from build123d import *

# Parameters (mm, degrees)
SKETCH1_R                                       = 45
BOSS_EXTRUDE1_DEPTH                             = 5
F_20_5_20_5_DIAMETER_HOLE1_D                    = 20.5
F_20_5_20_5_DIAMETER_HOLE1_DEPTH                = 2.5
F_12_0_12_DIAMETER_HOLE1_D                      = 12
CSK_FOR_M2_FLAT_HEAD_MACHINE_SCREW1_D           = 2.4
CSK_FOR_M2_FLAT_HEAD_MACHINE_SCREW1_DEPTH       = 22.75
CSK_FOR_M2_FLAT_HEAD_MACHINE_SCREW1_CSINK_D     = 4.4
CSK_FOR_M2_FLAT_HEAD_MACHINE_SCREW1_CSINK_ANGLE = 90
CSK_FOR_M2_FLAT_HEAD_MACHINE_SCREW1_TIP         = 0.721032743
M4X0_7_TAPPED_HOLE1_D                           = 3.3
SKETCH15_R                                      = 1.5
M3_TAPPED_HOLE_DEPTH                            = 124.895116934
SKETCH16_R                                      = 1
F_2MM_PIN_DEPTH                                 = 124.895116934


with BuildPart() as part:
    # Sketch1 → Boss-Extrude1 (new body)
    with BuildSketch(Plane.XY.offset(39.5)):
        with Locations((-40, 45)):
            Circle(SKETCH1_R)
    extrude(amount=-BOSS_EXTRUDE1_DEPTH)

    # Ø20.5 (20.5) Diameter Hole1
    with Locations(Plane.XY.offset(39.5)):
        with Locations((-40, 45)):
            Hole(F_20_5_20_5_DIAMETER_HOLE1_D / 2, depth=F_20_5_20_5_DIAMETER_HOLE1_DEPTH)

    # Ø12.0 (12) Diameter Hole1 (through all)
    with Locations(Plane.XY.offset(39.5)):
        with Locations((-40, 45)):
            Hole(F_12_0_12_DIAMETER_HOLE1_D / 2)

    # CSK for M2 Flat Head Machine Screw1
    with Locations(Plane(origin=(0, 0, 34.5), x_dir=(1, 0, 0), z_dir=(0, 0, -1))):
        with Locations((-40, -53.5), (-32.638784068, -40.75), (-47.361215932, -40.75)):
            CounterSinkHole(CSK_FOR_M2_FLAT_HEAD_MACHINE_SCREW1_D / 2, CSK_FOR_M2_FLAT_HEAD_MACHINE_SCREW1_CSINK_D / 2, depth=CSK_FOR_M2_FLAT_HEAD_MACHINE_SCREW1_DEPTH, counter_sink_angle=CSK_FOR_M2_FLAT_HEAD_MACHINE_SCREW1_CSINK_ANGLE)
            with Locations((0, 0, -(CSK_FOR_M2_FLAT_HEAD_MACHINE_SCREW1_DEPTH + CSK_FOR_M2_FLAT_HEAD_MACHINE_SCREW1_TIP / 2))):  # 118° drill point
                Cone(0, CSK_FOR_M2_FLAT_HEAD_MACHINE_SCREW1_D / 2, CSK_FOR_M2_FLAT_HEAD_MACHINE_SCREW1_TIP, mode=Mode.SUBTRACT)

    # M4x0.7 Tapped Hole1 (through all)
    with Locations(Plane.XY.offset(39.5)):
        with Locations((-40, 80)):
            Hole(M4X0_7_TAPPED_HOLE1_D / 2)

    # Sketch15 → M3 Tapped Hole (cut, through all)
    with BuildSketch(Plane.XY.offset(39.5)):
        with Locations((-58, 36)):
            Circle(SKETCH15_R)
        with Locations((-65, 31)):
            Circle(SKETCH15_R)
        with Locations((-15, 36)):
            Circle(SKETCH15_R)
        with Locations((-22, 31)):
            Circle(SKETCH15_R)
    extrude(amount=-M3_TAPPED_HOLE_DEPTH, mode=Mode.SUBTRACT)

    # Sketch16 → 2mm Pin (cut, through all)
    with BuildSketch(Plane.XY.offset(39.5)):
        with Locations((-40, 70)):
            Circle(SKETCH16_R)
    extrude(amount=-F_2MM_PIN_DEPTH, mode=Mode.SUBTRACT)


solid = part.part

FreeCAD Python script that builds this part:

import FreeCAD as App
import Part
import Sketcher
Q = App.Units.Quantity

doc = App.newDocument("Part")
body = doc.addObject("PartDesign::Body", "Body")

# Sketch on XY plane
sketch1 = doc.addObject("Sketcher::SketchObject", "Sketch")
body.addObject(sketch1)
sketch1.AttachmentSupport = (doc.XY_Plane, [""])
sketch1.MapMode = "FlatFace"
sketch1.AttachmentOffset = App.Placement(App.Vector(0, 0, 39.5), App.Rotation())
sketch1.addGeometry(Part.Circle(App.Vector(-40, 45, 0), App.Vector(0, 0, 1), 45), False)
sketch1.addConstraint([
    Sketcher.Constraint("Diameter", 0, Q("90 mm")),
    Sketcher.Constraint("DistanceX", 0, 3, -1, 1, Q("40 mm")),
    Sketcher.Constraint("DistanceY", -1, 1, 0, 3, Q("45 mm")),
])
pad1 = doc.addObject("PartDesign::Pad", "Pad")
body.addObject(pad1)
pad1.Profile = sketch1
pad1.Length = 5
pad1.Reversed = True

# Sketch on XY plane
sketch2 = doc.addObject("Sketcher::SketchObject", "Sketch001")
body.addObject(sketch2)
sketch2.AttachmentSupport = (doc.XY_Plane, [""])
sketch2.MapMode = "FlatFace"
sketch2.AttachmentOffset = App.Placement(App.Vector(0, 0, 39.5), App.Rotation())
sketch2.addGeometry(Part.Circle(App.Vector(-40, 45, 0), App.Vector(0, 0, 1), 10), False)
sketch2.addConstraint([
    Sketcher.Constraint("Diameter", 0, Q("20.5 mm")),
    Sketcher.Constraint("DistanceX", 0, 3, -1, 1, Q("40 mm")),
    Sketcher.Constraint("DistanceY", -1, 1, 0, 3, Q("45 mm")),
])
doc.recompute()
hole = doc.addObject("PartDesign::Hole", "Hole")
body.addObject(hole)
hole.Profile = sketch2
hole.ThreadType = "None"
hole.Diameter = 20.5
hole.DepthType = "Dimension"
hole.Depth = 2.5
hole.DrillPoint = "Flat"

# Sketch on XY plane
sketch3 = doc.addObject("Sketcher::SketchObject", "Sketch002")
body.addObject(sketch3)
sketch3.AttachmentSupport = (doc.XY_Plane, [""])
sketch3.MapMode = "FlatFace"
sketch3.AttachmentOffset = App.Placement(App.Vector(0, 0, 39.5), App.Rotation())
sketch3.addGeometry(Part.Circle(App.Vector(-40, 45, 0), App.Vector(0, 0, 1), 6), False)
sketch3.addConstraint([
    Sketcher.Constraint("Diameter", 0, Q("12 mm")),
    Sketcher.Constraint("DistanceX", 0, 3, -1, 1, Q("40 mm")),
    Sketcher.Constraint("DistanceY", -1, 1, 0, 3, Q("45 mm")),
])
doc.recompute()
hole2 = doc.addObject("PartDesign::Hole", "Hole001")
body.addObject(hole2)
hole2.Profile = sketch3
hole2.ThreadType = "None"
hole2.Diameter = 12
hole2.DepthType = "ThroughAll"

# Sketch on XY plane
sketch4 = doc.addObject("Sketcher::SketchObject", "Sketch003")
body.addObject(sketch4)
sketch4.AttachmentSupport = (doc.XY_Plane, [""])
sketch4.MapMode = "FlatFace"
sketch4.AttachmentOffset = App.Placement(App.Vector(0, 0, 34.5), App.Rotation())
sketch4.addGeometry([
    Part.Circle(App.Vector(-40, 53.5, 0), App.Vector(0, 0, 1), 1.2),
    Part.Circle(App.Vector(-32.6, 40.8, 0), App.Vector(0, 0, 1), 1.2),
    Part.Circle(App.Vector(-47.4, 40.8, 0), App.Vector(0, 0, 1), 1.2),
], False)
sketch4.addConstraint([
    Sketcher.Constraint("Equal", 0, 1),
    Sketcher.Constraint("Equal", 1, 2),
    Sketcher.Constraint("Horizontal", 1, 3, 2, 3),
    Sketcher.Constraint("Diameter", 0, Q("2.4 mm")),
    Sketcher.Constraint("DistanceX", 0, 3, -1, 1, Q("40 mm")),
    Sketcher.Constraint("DistanceY", -1, 1, 0, 3, Q("53.5 mm")),
    Sketcher.Constraint("DistanceY", -1, 1, 1, 3, Q("40.75 mm")),
    Sketcher.Constraint("DistanceX", 2, 3, 1, 3, Q("14.722432 mm")),
    Sketcher.Constraint("DistanceX", 1, 3, -1, 1, Q("32.638784 mm")),
])
doc.recompute()
hole3 = doc.addObject("PartDesign::Hole", "Hole002")
body.addObject(hole3)
hole3.Profile = sketch4
hole3.ThreadType = "None"
hole3.Diameter = 2.4
hole3.DepthType = "Dimension"
hole3.Depth = 22.75
hole3.DrillPoint = "Angled"
hole3.DrillPointAngle = 118
hole3.HoleCutType = "Countersink"
hole3.HoleCutDiameter = 4.4
hole3.HoleCutCountersinkAngle = 90
hole3.Reversed = True

# Sketch on XY plane
sketch5 = doc.addObject("Sketcher::SketchObject", "Sketch004")
body.addObject(sketch5)
sketch5.AttachmentSupport = (doc.XY_Plane, [""])
sketch5.MapMode = "FlatFace"
sketch5.AttachmentOffset = App.Placement(App.Vector(0, 0, 39.5), App.Rotation())
sketch5.addGeometry(Part.Circle(App.Vector(-40, 80, 0), App.Vector(0, 0, 1), 1.6), False)
sketch5.addConstraint([
    Sketcher.Constraint("Diameter", 0, Q("3.3 mm")),
    Sketcher.Constraint("DistanceX", 0, 3, -1, 1, Q("40 mm")),
    Sketcher.Constraint("DistanceY", -1, 1, 0, 3, Q("80 mm")),
])
doc.recompute()
hole4 = doc.addObject("PartDesign::Hole", "Hole003")
body.addObject(hole4)
hole4.Profile = sketch5
hole4.ThreadType = "None"
hole4.Diameter = 3.3
hole4.DepthType = "ThroughAll"

# Sketch on XY plane
sketch6 = doc.addObject("Sketcher::SketchObject", "Sketch005")
body.addObject(sketch6)
sketch6.AttachmentSupport = (doc.XY_Plane, [""])
sketch6.MapMode = "FlatFace"
sketch6.AttachmentOffset = App.Placement(App.Vector(0, 0, 39.5), App.Rotation())
sketch6.addGeometry([
    Part.Circle(App.Vector(-58, 36, 0), App.Vector(0, 0, 1), 1.5),
    Part.Circle(App.Vector(-65, 31, 0), App.Vector(0, 0, 1), 1.5),
    Part.Circle(App.Vector(-15, 36, 0), App.Vector(0, 0, 1), 1.5),
    Part.Circle(App.Vector(-22, 31, 0), App.Vector(0, 0, 1), 1.5),
], False)
sketch6.addConstraint([
    Sketcher.Constraint("Equal", 0, 1),
    Sketcher.Constraint("Equal", 1, 2),
    Sketcher.Constraint("Equal", 2, 3),
    Sketcher.Constraint("Horizontal", 0, 3, 2, 3),
    Sketcher.Constraint("Horizontal", 1, 3, 3, 3),
    Sketcher.Constraint("Diameter", 0, Q("3 mm")),
    Sketcher.Constraint("DistanceX", 0, 3, -1, 1, Q("58 mm")),
    Sketcher.Constraint("DistanceY", -1, 1, 0, 3, Q("36 mm")),
    Sketcher.Constraint("DistanceX", 1, 3, -1, 1, Q("65 mm")),
    Sketcher.Constraint("DistanceY", -1, 1, 1, 3, Q("31 mm")),
    Sketcher.Constraint("DistanceX", 2, 3, -1, 1, Q("15 mm")),
    Sketcher.Constraint("DistanceX", 3, 3, -1, 1, Q("22 mm")),
])
pocket1 = doc.addObject("PartDesign::Pocket", "Pocket")
body.addObject(pocket1)
pocket1.Profile = sketch6
pocket1.Type = "ThroughAll"

# Sketch on XY plane
sketch7 = doc.addObject("Sketcher::SketchObject", "Sketch006")
body.addObject(sketch7)
sketch7.AttachmentSupport = (doc.XY_Plane, [""])
sketch7.MapMode = "FlatFace"
sketch7.AttachmentOffset = App.Placement(App.Vector(0, 0, 39.5), App.Rotation())
sketch7.addGeometry(Part.Circle(App.Vector(-40, 70, 0), App.Vector(0, 0, 1), 1), False)
sketch7.addConstraint([
    Sketcher.Constraint("Diameter", 0, Q("2 mm")),
    Sketcher.Constraint("DistanceX", 0, 3, -1, 1, Q("40 mm")),
    Sketcher.Constraint("DistanceY", -1, 1, 0, 3, Q("70 mm")),
])
pocket2 = doc.addObject("PartDesign::Pocket", "Pocket001")
body.addObject(pocket2)
pocket2.Profile = sketch7
pocket2.Type = "ThroughAll"

doc.recompute()
